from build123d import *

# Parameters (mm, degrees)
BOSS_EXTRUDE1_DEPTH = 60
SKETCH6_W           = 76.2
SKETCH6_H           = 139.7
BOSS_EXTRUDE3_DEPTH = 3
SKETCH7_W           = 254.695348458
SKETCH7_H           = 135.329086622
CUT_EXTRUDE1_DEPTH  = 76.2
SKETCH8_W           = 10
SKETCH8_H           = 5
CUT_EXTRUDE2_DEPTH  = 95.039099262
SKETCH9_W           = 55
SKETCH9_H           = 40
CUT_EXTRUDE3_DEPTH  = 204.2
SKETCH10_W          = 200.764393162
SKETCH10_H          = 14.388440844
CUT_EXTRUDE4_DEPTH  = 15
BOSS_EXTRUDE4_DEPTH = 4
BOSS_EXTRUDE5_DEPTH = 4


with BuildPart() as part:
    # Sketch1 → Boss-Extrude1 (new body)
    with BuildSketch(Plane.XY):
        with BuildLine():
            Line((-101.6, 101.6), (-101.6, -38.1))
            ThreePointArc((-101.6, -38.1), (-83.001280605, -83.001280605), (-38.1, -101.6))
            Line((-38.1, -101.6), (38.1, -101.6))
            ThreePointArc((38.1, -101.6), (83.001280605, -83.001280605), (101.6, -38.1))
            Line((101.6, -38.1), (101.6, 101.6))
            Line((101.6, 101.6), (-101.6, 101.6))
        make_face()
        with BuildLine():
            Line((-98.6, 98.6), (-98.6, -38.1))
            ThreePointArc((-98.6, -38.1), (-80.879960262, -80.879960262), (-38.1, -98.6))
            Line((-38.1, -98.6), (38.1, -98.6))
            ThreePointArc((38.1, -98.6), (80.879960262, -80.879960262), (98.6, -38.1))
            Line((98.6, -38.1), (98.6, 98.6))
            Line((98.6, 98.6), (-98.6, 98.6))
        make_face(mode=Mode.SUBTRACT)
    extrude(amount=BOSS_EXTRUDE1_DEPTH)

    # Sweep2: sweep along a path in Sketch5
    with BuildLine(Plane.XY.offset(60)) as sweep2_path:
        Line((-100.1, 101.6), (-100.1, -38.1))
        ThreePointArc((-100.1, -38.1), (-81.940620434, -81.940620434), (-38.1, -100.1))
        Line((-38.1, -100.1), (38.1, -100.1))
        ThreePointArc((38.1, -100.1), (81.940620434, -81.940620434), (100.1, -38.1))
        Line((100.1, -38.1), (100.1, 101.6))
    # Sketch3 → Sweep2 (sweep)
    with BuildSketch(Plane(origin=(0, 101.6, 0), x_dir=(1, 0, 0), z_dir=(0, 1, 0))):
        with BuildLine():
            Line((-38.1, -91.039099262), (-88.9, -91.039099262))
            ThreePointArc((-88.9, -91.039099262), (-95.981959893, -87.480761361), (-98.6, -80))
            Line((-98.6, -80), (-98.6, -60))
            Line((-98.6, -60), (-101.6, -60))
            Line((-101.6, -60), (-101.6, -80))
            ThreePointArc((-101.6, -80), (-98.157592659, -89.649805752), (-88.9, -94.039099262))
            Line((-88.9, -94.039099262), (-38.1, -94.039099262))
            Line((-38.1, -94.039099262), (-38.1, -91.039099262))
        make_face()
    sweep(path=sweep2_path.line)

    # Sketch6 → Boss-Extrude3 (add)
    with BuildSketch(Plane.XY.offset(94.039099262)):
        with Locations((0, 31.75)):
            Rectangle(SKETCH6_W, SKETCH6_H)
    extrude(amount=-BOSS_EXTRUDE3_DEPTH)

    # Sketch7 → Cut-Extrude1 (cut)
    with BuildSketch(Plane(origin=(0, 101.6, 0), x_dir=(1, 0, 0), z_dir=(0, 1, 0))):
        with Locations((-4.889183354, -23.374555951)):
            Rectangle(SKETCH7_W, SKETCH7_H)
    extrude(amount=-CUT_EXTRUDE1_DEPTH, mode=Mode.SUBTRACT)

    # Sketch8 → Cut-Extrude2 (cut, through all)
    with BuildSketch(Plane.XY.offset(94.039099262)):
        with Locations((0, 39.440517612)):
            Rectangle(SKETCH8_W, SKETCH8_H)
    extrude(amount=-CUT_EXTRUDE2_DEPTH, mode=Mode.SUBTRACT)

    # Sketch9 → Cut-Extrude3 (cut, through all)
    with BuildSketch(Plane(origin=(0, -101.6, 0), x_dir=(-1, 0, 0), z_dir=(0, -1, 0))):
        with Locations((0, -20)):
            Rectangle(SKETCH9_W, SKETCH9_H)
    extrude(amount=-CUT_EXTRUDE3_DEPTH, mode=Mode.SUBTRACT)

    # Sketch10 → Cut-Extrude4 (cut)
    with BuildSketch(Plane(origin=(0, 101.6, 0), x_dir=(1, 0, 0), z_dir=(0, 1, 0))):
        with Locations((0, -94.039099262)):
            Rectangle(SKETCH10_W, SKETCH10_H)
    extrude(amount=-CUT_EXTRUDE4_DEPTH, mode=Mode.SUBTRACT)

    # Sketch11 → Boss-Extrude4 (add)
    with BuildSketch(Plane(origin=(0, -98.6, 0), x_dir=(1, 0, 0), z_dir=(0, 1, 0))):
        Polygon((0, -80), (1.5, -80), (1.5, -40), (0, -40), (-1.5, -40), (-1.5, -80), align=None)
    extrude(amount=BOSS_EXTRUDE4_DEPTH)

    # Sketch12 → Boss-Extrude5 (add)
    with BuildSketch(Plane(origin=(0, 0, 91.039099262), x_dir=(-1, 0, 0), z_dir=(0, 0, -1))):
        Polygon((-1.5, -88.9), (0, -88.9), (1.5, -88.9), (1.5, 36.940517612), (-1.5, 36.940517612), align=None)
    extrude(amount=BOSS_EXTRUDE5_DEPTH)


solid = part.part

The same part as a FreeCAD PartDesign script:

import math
import FreeCAD as App
import Part
import Sketcher

V = App.Vector


def add_polygon(sketch, points):
    """Adds a closed chain of lines whose ends are joined by coincident constraints."""
    first, n = sketch.GeometryCount, len(points)
    for a, b in zip(points, points[1:] + points[:1]):
        sketch.addGeometry(Part.LineSegment(App.Vector(*a, 0), App.Vector(*b, 0)), False)
    for i in range(n):
        sketch.addConstraint(Sketcher.Constraint("Coincident", first + i, 2, first + (i + 1) % n, 1))

doc = App.newDocument("Part")
body = doc.addObject("PartDesign::Body", "Body")

# Sketch on XY plane
sketch1 = body.newObject("Sketcher::SketchObject", "Sketch")
sketch1.AttachmentSupport = (doc.getObject("XY_Plane"), [""])
sketch1.MapMode = "FlatFace"
sketch1.addGeometry([
    Part.LineSegment(V(-101.6, 101.6, 0), V(-101.6, -38.1, 0)),  # 0
    Part.ArcOfCircle(Part.Circle(V(-38.1, -38.1, 0), V(0, 0, 1), 63.5), math.radians(-180), math.radians(-90)),  # 1
    Part.LineSegment(V(-38.1, -101.6, 0), V(38.1, -101.6, 0)),  # 2
    Part.ArcOfCircle(Part.Circle(V(38.1, -38.1, 0), V(0, 0, 1), 63.5), math.radians(-90), math.radians(0)),  # 3
    Part.LineSegment(V(101.6, -38.1, 0), V(101.6, 101.6, 0)),  # 4
    Part.LineSegment(V(101.6, 101.6, 0), V(-101.6, 101.6, 0)),  # 5
    Part.LineSegment(V(-98.6, -38.1, 0), V(-98.6, 98.6, 0)),  # 6
    Part.LineSegment(V(-98.6, 98.6, 0), V(98.6, 98.6, 0)),  # 7
    Part.LineSegment(V(98.6, 98.6, 0), V(98.6, -38.1, 0)),  # 8
    Part.ArcOfCircle(Part.Circle(V(38.1, -38.1, 0), V(0, 0, 1), 60.5), math.radians(-90), math.radians(0)),  # 9
    Part.LineSegment(V(38.1, -98.6, 0), V(-38.1, -98.6, 0)),  # 10
    Part.ArcOfCircle(Part.Circle(V(-38.1, -38.1, 0), V(0, 0, 1), 60.5), math.radians(180), math.radians(270)),  # 11
], False)
sketch1.addConstraint([
    Sketcher.Constraint("Tangent", 0, 2, 1, 1),
    Sketcher.Constraint("Tangent", 1, 2, 2, 1),
    Sketcher.Constraint("Tangent", 2, 2, 3, 1),
    Sketcher.Constraint("Tangent", 3, 2, 4, 1),
    Sketcher.Constraint("Coincident", 4, 2, 5, 1),
    Sketcher.Constraint("Coincident", 5, 2, 0, 1),
    Sketcher.Constraint("Coincident", 6, 2, 7, 1),
    Sketcher.Constraint("Coincident", 7, 2, 8, 1),
    Sketcher.Constraint("Tangent", 8, 2, 9, 2),
    Sketcher.Constraint("Tangent", 9, 1, 10, 1),
    Sketcher.Constraint("Tangent", 10, 2, 11, 2),
    Sketcher.Constraint("Tangent", 11, 1, 6, 1),
    Sketcher.Constraint("Vertical", 0),
    Sketcher.Constraint("Horizontal", 2),
    Sketcher.Constraint("Vertical", 4),
    Sketcher.Constraint("Horizontal", 5),
    Sketcher.Constraint("Vertical", 6),
    Sketcher.Constraint("Horizontal", 7),
    Sketcher.Constraint("Vertical", 8),
    Sketcher.Constraint("Horizontal", 10),
    Sketcher.Constraint("Coincident", 9, 3, 3, 3),
    Sketcher.Constraint("Coincident", 11, 3, 1, 3),
    Sketcher.Constraint("Equal", 1, 3),
    Sketcher.Constraint("Radius", 1, 63.5),
    Sketcher.Constraint("Radius", 9, 60.5),
    Sketcher.Constraint("DistanceX", 2, 1, 2, 2, 76.2),
    Sketcher.Constraint("DistanceY", 0, 2, 0, 1, 139.7),
    Sketcher.Constraint("DistanceY", 6, 1, 6, 2, 136.7),
    Sketcher.Constraint("DistanceX", 1, 3, -1, 1, 38.1),
    Sketcher.Constraint("DistanceY", 1, 3, -1, 1, 38.1),
])
pad1 = body.newObject("PartDesign::Pad", "Pad")
pad1.Profile = sketch1
pad1.Length = 60

# Sketch on XZ plane
sketch2 = body.newObject("Sketcher::SketchObject", "Sketch001")
sketch2.AttachmentSupport = (doc.getObject("XZ_Plane"), [""])
sketch2.MapMode = "FlatFace"
sketch2.AttachmentOffset = App.Placement(V(0, 0, -101.6), App.Rotation())
sketch2.addGeometry([
    Part.LineSegment(V(-38.1, 91.039099, 0), V(-88.9, 91.039099, 0)),  # 0
    Part.ArcOfCircle(Part.Circle(V(-88.041165, 80.503225, 0), V(0, 0, 1), 10.57082), math.radians(94.660181), math.radians(182.728604)),  # 1
    Part.LineSegment(V(-98.6, 80, 0), V(-98.6, 60, 0)),  # 2
    Part.LineSegment(V(-98.6, 60, 0), V(-101.6, 60, 0)),  # 3
    Part.LineSegment(V(-101.6, 60, 0), V(-101.6, 80, 0)),  # 4
    Part.ArcOfCircle(Part.Circle(V(-88.23045, 80.66955, 0), V(0, 0, 1), 13.386305), math.radians(92.866988), math.radians(182.866988)),  # 5
    Part.LineSegment(V(-88.9, 94.039099, 0), V(-38.1, 94.039099, 0)),  # 6
    Part.LineSegment(V(-38.1, 94.039099, 0), V(-38.1, 91.039099, 0)),  # 7
], False)
sketch2.addConstraint([
    Sketcher.Constraint("Coincident", 0, 2, 1, 1),
    Sketcher.Constraint("Coincident", 1, 2, 2, 1),
    Sketcher.Constraint("Coincident", 2, 2, 3, 1),
    Sketcher.Constraint("Coincident", 3, 2, 4, 1),
    Sketcher.Constraint("Coincident", 4, 2, 5, 2),
    Sketcher.Constraint("Coincident", 5, 1, 6, 1),
    Sketcher.Constraint("Coincident", 6, 2, 7, 1),
    Sketcher.Constraint("Coincident", 7, 2, 0, 1),
    Sketcher.Constraint("Horizontal", 0),
    Sketcher.Constraint("Vertical", 2),
    Sketcher.Constraint("Horizontal", 3),
    Sketcher.Constraint("Vertical", 4),
    Sketcher.Constraint("Horizontal", 6),
    Sketcher.Constraint("Vertical", 7),
    Sketcher.Constraint("Horizontal", 1, 2, 4, 2),
    Sketcher.Constraint("Vertical", 0, 2, 5, 1),
    Sketcher.Constraint("Equal", 3, 7),
    Sketcher.Constraint("DistanceX", 3, 2, 3, 1, 3.0),
    Sketcher.Constraint("DistanceY", 2, 2, 2, 1, 20.0),
    Sketcher.Constraint("DistanceX", 0, 2, 0, 1, 50.8),
    Sketcher.Constraint("DistanceY", -1, 1, 1, 2, 80.0),
    Sketcher.Constraint("DistanceX", 0, 2, -1, 1, 88.9),
    Sketcher.Constraint("DistanceX", 1, 2, -1, 1, 98.6),
    Sketcher.Constraint("Radius", 1, 10.57082),
    Sketcher.Constraint("Radius", 5, 13.386305),
    Sketcher.Constraint("DistanceY", -1, 1, 0, 2, 91.039099),
])

# Sketch on XY plane
sketch3 = body.newObject("Sketcher::SketchObject", "Sketch002")
sketch3.AttachmentSupport = (doc.getObject("XY_Plane"), [""])
sketch3.MapMode = "FlatFace"
sketch3.AttachmentOffset = App.Placement(V(0, 0, 60), App.Rotation())
sketch3.addGeometry([
    Part.LineSegment(V(-100.1, 101.6, 0), V(-100.1, -38.1, 0)),  # 0
    Part.ArcOfCircle(Part.Circle(V(-38.1, -38.1, 0), V(0, 0, 1), 62), math.radians(180), math.radians(270)),  # 1
    Part.LineSegment(V(-38.1, -100.1, 0), V(38.1, -100.1, 0)),  # 2
    Part.ArcOfCircle(Part.Circle(V(38.1, -38.1, 0), V(0, 0, 1), 62), math.radians(-90), math.radians(0)),  # 3
    Part.LineSegment(V(100.1, -38.1, 0), V(100.1, 101.6, 0)),  # 4
], False)
sketch3.addConstraint([
    Sketcher.Constraint("Tangent", 0, 2, 1, 1),
    Sketcher.Constraint("Tangent", 1, 2, 2, 1),
    Sketcher.Constraint("Tangent", 2, 2, 3, 1),
    Sketcher.Constraint("Tangent", 3, 2, 4, 1),
    Sketcher.Constraint("Vertical", 0),
    Sketcher.Constraint("Horizontal", 2),
    Sketcher.Constraint("Vertical", 4),
    Sketcher.Constraint("Equal", 1, 3),
    Sketcher.Constraint("Symmetric", 0, 1, 4, 2, -2),
    Sketcher.Constraint("Radius", 1, 62.0),
    Sketcher.Constraint("DistanceX", 2, 1, 2, 2, 76.2),
    Sketcher.Constraint("DistanceY", 0, 2, 0, 1, 139.7),
    Sketcher.Constraint("DistanceY", 1, 3, -1, 1, 38.1),
])
doc.recompute()

additivepipe = body.newObject("PartDesign::AdditivePipe", "AdditivePipe")
additivepipe.Profile = sketch2
additivepipe.Spine = (sketch3, ["Edge1", "Edge2", "Edge3", "Edge4", "Edge5"])

# Sketch on XY plane
sketch4 = body.newObject("Sketcher::SketchObject", "Sketch003")
sketch4.AttachmentSupport = (doc.getObject("XY_Plane"), [""])
sketch4.MapMode = "FlatFace"
sketch4.AttachmentOffset = App.Placement(V(0, 0, 94.039099), App.Rotation())
add_polygon(sketch4, [(-38.1, 101.6), (-38.1, -38.1), (38.1, -38.1), (38.1, 101.6)])  # lines 0-3
sketch4.addConstraint([
    Sketcher.Constraint("Vertical", 0),
    Sketcher.Constraint("Horizontal", 1),
    Sketcher.Constraint("Vertical", 2),
    Sketcher.Constraint("Horizontal", 3),
    Sketcher.Constraint("DistanceX", 1, 1, 1, 2, 76.2),
    Sketcher.Constraint("DistanceY", 0, 2, 0, 1, 139.7),
    Sketcher.Constraint("DistanceX", 0, 2, -1, 1, 38.1),
    Sketcher.Constraint("DistanceY", 0, 2, -1, 1, 38.1),
])
pad2 = body.newObject("PartDesign::Pad", "Pad001")
pad2.Profile = sketch4
pad2.Length = 3
pad2.Reversed = True

# Sketch on XZ plane
sketch5 = body.newObject("Sketcher::SketchObject", "Sketch004")
sketch5.AttachmentSupport = (doc.getObject("XZ_Plane"), [""])
sketch5.MapMode = "FlatFace"
sketch5.AttachmentOffset = App.Placement(V(0, 0, -101.6), App.Rotation())
add_polygon(sketch5, [(-132.236858, -44.289987), (-132.236858, 91.039099), (122.458491, 91.039099), (122.458491, -44.289987)])  # lines 0-3
sketch5.addConstraint([
    Sketcher.Constraint("Vertical", 0),
    Sketcher.Constraint("Horizontal", 1),
    Sketcher.Constraint("Vertical", 2),
    Sketcher.Constraint("Horizontal", 3),
    Sketcher.Constraint("DistanceX", 1, 1, 1, 2, 254.695348),
    Sketcher.Constraint("DistanceY", -1, 1, 0, 2, 91.039099),
    Sketcher.Constraint("DistanceY", 0, 1, 0, 2, 135.329087),
    Sketcher.Constraint("DistanceX", -1, 1, 1, 2, 122.458491),
])
pocket1 = body.newObject("PartDesign::Pocket", "Pocket")
pocket1.Profile = sketch5
pocket1.Length = 76.2
pocket1.Reversed = True

# Sketch on XY plane
sketch6 = body.newObject("Sketcher::SketchObject", "Sketch005")
sketch6.AttachmentSupport = (doc.getObject("XY_Plane"), [""])
sketch6.MapMode = "FlatFace"
sketch6.AttachmentOffset = App.Placement(V(0, 0, 94.039099), App.Rotation())
add_polygon(sketch6, [(-5, 41.940518), (-5, 36.940518), (5, 36.940518), (5, 41.940518)])  # lines 0-3
sketch6.addConstraint([
    Sketcher.Constraint("Vertical", 0),
    Sketcher.Constraint("Horizontal", 1),
    Sketcher.Constraint("Vertical", 2),
    Sketcher.Constraint("Horizontal", 3),
    Sketcher.Constraint("DistanceX", 1, 1, 1, 2, 10.0),
    Sketcher.Constraint("DistanceY", 0, 2, 0, 1, 5.0),
    Sketcher.Constraint("DistanceX", 0, 2, -1, 1, 5.0),
    Sketcher.Constraint("DistanceY", -1, 1, 0, 2, 36.940518),
])
pocket2 = body.newObject("PartDesign::Pocket", "Pocket001")
pocket2.Profile = sketch6
pocket2.Type = "ThroughAll"

# Sketch on XZ plane
sketch7 = body.newObject("Sketcher::SketchObject", "Sketch006")
sketch7.AttachmentSupport = (doc.getObject("XZ_Plane"), [""])
sketch7.MapMode = "FlatFace"
sketch7.AttachmentOffset = App.Placement(V(0, 0, 101.6), App.Rotation())
add_polygon(sketch7, [(27.5, 0), (27.5, 40), (-27.5, 40), (-27.5, 0)])  # lines 0-3
sketch7.addConstraint([
    Sketcher.Constraint("Vertical", 0),
    Sketcher.Constraint("Horizontal", 1),
    Sketcher.Constraint("Vertical", 2),
    Sketcher.Constraint("Horizontal", 3),
    Sketcher.Constraint("Symmetric", 2, 2, 3, 2, -1, 1),
    Sketcher.Constraint("DistanceX", 1, 2, 1, 1, 55.0),
    Sketcher.Constraint("DistanceY", 0, 1, 0, 2, 40.0),
])
pocket3 = body.newObject("PartDesign::Pocket", "Pocket002")
pocket3.Profile = sketch7
pocket3.Type = "ThroughAll"

# Sketch on XZ plane
sketch8 = body.newObject("Sketcher::SketchObject", "Sketch007")
sketch8.AttachmentSupport = (doc.getObject("XZ_Plane"), [""])
sketch8.MapMode = "FlatFace"
sketch8.AttachmentOffset = App.Placement(V(0, 0, -101.6), App.Rotation())
add_polygon(sketch8, [(-100.382197, 86.844879), (-100.382197, 101.23332), (100.382197, 101.23332), (100.382197, 86.844879)])  # lines 0-3
sketch8.addConstraint([
    Sketcher.Constraint("Vertical", 0),
    Sketcher.Constraint("Horizontal", 1),
    Sketcher.Constraint("Vertical", 2),
    Sketcher.Constraint("Horizontal", 3),
    Sketcher.Constraint("DistanceY", 0, 1, 0, 2, 14.388441),
    Sketcher.Constraint("DistanceX", 1, 1, 1, 2, 200.764393),
    Sketcher.Constraint("DistanceY", -1, 1, 0, 2, 101.23332),
    Sketcher.Constraint("DistanceX", 0, 2, -1, 1, 100.382197),
])
pocket4 = body.newObject("PartDesign::Pocket", "Pocket003")
pocket4.Profile = sketch8
pocket4.Length = 15
pocket4.Reversed = True

# Sketch on XZ plane
sketch9 = body.newObject("Sketcher::SketchObject", "Sketch008")
sketch9.AttachmentSupport = (doc.getObject("XZ_Plane"), [""])
sketch9.MapMode = "FlatFace"
sketch9.AttachmentOffset = App.Placement(V(0, 0, 98.6), App.Rotation())
add_polygon(sketch9, [(1.5, 80), (1.5, 40), (-1.5, 40), (-1.5, 80)])  # lines 0-3
sketch9.addConstraint([
    Sketcher.Constraint("Vertical", 0),
    Sketcher.Constraint("Horizontal", 1),
    Sketcher.Constraint("Vertical", 2),
    Sketcher.Constraint("Horizontal", 3),
    Sketcher.Constraint("DistanceX", 1, 2, 1, 1, 3.0),
    Sketcher.Constraint("DistanceY", 0, 2, 0, 1, 40.0),
    Sketcher.Constraint("DistanceY", -1, 1, 0, 2, 40.0),
    Sketcher.Constraint("DistanceX", -1, 1, 0, 2, 1.5),
])
pad3 = body.newObject("PartDesign::Pad", "Pad002")
pad3.Profile = sketch9
pad3.Length = 4
pad3.Reversed = True

# Sketch on XY plane
sketch10 = body.newObject("Sketcher::SketchObject", "Sketch009")
sketch10.AttachmentSupport = (doc.getObject("XY_Plane"), [""])
sketch10.MapMode = "FlatFace"
sketch10.AttachmentOffset = App.Placement(V(0, 0, 91.039099), App.Rotation())
add_polygon(sketch10, [(1.5, -88.9), (-1.5, -88.9), (-1.5, 36.940518), (1.5, 36.940518)])  # lines 0-3
sketch10.addConstraint([
    Sketcher.Constraint("Horizontal", 0),
    Sketcher.Constraint("Vertical", 1),
    Sketcher.Constraint("Horizontal", 2),
    Sketcher.Constraint("Vertical", 3),
    Sketcher.Constraint("DistanceX", 0, 2, 0, 1, 3.0),
    Sketcher.Constraint("DistanceX", 0, 2, -1, 1, 1.5),
    Sketcher.Constraint("DistanceY", 0, 2, -1, 1, 88.9),
    Sketcher.Constraint("DistanceY", 1, 1, 1, 2, 125.840518),
])
pad4 = body.newObject("PartDesign::Pad", "Pad003")
pad4.Profile = sketch10
pad4.Length = 4
pad4.Reversed = True

doc.recompute()
